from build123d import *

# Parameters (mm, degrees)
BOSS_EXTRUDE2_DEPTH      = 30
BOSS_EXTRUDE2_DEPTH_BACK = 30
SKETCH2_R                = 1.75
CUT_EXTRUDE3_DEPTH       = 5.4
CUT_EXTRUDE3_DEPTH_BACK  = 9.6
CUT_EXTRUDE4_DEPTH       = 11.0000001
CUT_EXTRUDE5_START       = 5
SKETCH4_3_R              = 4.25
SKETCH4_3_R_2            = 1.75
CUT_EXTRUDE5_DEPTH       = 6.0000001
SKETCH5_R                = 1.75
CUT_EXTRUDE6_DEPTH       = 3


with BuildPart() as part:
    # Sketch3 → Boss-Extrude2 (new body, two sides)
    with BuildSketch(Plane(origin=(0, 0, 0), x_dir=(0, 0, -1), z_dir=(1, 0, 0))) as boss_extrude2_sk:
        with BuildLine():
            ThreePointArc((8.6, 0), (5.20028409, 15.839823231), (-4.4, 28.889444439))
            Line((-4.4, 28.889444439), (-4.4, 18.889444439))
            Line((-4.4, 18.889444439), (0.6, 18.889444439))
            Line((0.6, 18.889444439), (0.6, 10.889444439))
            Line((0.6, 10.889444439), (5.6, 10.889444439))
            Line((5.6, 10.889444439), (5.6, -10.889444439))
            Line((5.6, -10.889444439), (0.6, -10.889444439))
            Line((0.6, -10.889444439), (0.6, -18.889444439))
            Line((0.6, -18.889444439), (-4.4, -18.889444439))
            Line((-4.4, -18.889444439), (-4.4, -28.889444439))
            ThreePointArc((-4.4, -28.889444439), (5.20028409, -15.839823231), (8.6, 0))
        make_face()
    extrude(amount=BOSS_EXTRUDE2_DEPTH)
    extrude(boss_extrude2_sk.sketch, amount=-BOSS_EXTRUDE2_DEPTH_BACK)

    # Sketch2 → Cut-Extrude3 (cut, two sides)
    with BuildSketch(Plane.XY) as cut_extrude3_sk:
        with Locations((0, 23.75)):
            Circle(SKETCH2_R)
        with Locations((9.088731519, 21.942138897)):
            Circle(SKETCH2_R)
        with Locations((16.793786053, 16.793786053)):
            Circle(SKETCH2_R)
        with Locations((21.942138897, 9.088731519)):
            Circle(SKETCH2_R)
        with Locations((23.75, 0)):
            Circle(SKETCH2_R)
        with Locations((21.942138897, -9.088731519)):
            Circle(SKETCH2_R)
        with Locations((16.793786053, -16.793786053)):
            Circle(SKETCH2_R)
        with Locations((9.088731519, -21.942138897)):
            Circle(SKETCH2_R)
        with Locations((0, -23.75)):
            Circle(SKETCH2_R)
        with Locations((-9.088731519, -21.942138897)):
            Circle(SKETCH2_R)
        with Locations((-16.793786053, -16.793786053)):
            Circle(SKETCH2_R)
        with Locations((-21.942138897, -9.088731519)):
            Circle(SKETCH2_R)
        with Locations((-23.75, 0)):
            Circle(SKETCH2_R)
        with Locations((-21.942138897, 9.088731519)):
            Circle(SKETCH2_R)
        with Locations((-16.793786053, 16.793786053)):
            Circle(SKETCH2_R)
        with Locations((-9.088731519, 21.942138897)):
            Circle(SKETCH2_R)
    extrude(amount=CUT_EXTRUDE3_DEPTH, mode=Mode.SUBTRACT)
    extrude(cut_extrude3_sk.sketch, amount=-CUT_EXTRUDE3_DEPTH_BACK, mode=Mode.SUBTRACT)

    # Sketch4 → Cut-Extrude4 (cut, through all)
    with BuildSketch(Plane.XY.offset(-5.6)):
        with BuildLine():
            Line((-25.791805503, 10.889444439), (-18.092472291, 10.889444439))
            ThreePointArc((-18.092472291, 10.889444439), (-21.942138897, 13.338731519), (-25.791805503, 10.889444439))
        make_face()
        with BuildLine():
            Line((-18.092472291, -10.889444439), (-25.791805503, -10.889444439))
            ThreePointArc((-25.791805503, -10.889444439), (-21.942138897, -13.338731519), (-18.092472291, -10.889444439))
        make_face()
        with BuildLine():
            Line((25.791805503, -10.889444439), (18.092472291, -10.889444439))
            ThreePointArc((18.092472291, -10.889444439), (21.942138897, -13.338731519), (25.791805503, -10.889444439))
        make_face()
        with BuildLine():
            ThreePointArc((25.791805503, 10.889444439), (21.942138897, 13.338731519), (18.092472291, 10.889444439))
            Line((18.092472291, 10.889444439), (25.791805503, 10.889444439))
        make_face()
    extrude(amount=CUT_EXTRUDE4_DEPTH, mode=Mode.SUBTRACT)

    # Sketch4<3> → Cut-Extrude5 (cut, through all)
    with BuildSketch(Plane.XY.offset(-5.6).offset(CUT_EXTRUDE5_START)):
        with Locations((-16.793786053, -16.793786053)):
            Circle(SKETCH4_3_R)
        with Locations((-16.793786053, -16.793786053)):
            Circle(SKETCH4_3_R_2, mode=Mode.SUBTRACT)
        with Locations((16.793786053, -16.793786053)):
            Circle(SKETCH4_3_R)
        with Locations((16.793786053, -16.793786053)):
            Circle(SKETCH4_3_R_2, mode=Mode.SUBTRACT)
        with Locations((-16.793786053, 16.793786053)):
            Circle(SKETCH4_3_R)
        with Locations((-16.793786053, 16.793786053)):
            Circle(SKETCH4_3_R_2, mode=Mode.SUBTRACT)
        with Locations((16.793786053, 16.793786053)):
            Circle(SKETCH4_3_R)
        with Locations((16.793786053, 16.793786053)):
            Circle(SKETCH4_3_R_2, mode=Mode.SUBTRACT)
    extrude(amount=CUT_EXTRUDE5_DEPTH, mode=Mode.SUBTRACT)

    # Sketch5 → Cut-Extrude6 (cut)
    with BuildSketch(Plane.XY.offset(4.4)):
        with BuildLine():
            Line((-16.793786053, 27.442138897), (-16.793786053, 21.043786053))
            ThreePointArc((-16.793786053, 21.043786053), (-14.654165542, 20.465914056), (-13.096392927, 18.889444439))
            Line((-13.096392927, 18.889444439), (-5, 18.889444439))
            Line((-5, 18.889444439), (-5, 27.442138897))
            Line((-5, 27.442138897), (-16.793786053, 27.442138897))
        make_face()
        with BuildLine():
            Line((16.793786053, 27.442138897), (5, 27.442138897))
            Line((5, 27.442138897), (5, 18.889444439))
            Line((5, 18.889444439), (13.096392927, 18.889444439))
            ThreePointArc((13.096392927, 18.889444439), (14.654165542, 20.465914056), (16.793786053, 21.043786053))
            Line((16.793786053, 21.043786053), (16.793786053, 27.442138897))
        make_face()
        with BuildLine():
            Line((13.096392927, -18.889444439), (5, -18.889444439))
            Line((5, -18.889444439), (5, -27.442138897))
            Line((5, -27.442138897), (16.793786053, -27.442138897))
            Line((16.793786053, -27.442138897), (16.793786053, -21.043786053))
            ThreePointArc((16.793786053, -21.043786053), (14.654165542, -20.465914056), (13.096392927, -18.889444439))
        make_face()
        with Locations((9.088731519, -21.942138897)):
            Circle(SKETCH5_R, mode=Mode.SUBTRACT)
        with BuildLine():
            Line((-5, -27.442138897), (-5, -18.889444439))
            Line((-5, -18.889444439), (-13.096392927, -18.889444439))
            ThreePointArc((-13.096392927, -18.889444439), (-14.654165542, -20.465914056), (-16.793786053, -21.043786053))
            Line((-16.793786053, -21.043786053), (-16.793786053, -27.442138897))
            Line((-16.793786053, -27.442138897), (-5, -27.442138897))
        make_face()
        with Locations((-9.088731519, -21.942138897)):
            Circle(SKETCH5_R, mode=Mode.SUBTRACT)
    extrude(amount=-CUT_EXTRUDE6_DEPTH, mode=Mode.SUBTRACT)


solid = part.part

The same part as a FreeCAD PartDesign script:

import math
import FreeCAD as App
import Part
import Sketcher

V = App.Vector

doc = App.newDocument("Part")
body = doc.addObject("PartDesign::Body", "Body")

# Sketch on YZ plane
sketch1 = body.newObject("Sketcher::SketchObject", "Sketch")
sketch1.AttachmentSupport = (doc.getObject("YZ_Plane"), [""])
sketch1.MapMode = "FlatFace"
sketch1.addGeometry([
    Part.ArcOfCircle(Part.Circle(V(0, 30, 0), V(0, 0, 1), 39), math.radians(-90), math.radians(-42)),  # 0
    Part.LineSegment(V(29, 4, 0), V(19, 4, 0)),  # 1
    Part.LineSegment(V(19, 4, 0), V(19, -1, 0)),  # 2
    Part.LineSegment(V(19, -1, 0), V(11, -1, 0)),  # 3
    Part.LineSegment(V(11, -1, 0), V(11, -6, 0)),  # 4
    Part.LineSegment(V(11, -6, 0), V(-11, -6, 0)),  # 5
    Part.LineSegment(V(-11, -6, 0), V(-11, -1, 0)),  # 6
    Part.LineSegment(V(-11, -1, 0), V(-19, -1, 0)),  # 7
    Part.LineSegment(V(-19, -1, 0), V(-19, 4, 0)),  # 8
    Part.LineSegment(V(-19, 4, 0), V(-29, 4, 0)),  # 9
    Part.ArcOfCircle(Part.Circle(V(0, 30, 0), V(0, 0, 1), 39), math.radians(-138), math.radians(-90)),  # 10
], False)
sketch1.addConstraint([
    Sketcher.Constraint("Coincident", 0, 2, 1, 1),
    Sketcher.Constraint("Coincident", 1, 2, 2, 1),
    Sketcher.Constraint("Coincident", 2, 2, 3, 1),
    Sketcher.Constraint("Coincident", 3, 2, 4, 1),
    Sketcher.Constraint("Coincident", 4, 2, 5, 1),
    Sketcher.Constraint("Coincident", 5, 2, 6, 1),
    Sketcher.Constraint("Coincident", 6, 2, 7, 1),
    Sketcher.Constraint("Coincident", 7, 2, 8, 1),
    Sketcher.Constraint("Coincident", 8, 2, 9, 1),
    Sketcher.Constraint("Coincident", 9, 2, 10, 1),
    Sketcher.Constraint("Tangent", 10, 2, 0, 1),
    Sketcher.Constraint("Horizontal", 1),
    Sketcher.Constraint("Vertical", 2),
    Sketcher.Constraint("Horizontal", 3),
    Sketcher.Constraint("Vertical", 4),
    Sketcher.Constraint("Horizontal", 5),
    Sketcher.Constraint("Vertical", 6),
    Sketcher.Constraint("Horizontal", 7),
    Sketcher.Constraint("Vertical", 8),
    Sketcher.Constraint("Horizontal", 9),
    Sketcher.Constraint("Equal", 0, 10),
    Sketcher.Constraint("Symmetric", 3, 2, 6, 2, -2),
    Sketcher.Constraint("Symmetric", 1, 2, 8, 2, -2),
    Sketcher.Constraint("PointOnObject", 0, 3, -2),
    Sketcher.Constraint("PointOnObject", 10, 2, -2),
    Sketcher.Constraint("Equal", 2, 4),
    Sketcher.Constraint("Radius", 0, 38.6),
    Sketcher.Constraint("DistanceX", 1, 2, 1, 1, 10.0),
    Sketcher.Constraint("DistanceX", 3, 2, 3, 1, 8.0),
    Sketcher.Constraint("DistanceY", 2, 2, 2, 1, 5.0),
    Sketcher.Constraint("DistanceY", -1, 1, 0, 3, 30.0),
    Sketcher.Constraint("DistanceY", 10, 2, 4, 2, 3.0),
])
pad1 = body.newObject("PartDesign::Pad", "Pad")
pad1.Profile = sketch1
pad1.Type = "TwoLengths"
pad1.Length = 30
pad1.Length2 = 30

# Sketch on XY plane
sketch2 = body.newObject("Sketcher::SketchObject", "Sketch001")
sketch2.AttachmentSupport = (doc.getObject("XY_Plane"), [""])
sketch2.MapMode = "FlatFace"
sketch2.addGeometry([
    Part.Circle(V(0, 23.8, 0), V(0, 0, 1), 1.8),  # 0
    Part.Circle(V(9.1, 21.9, 0), V(0, 0, 1), 1.8),  # 1
    Part.Circle(V(16.8, 16.8, 0), V(0, 0, 1), 1.8),  # 2
    Part.Circle(V(21.9, 9.1, 0), V(0, 0, 1), 1.8),  # 3
    Part.Circle(V(23.8, 0, 0), V(0, 0, 1), 1.8),  # 4
    Part.Circle(V(21.9, -9.1, 0), V(0, 0, 1), 1.8),  # 5
    Part.Circle(V(16.8, -16.8, 0), V(0, 0, 1), 1.8),  # 6
    Part.Circle(V(9.1, -21.9, 0), V(0, 0, 1), 1.8),  # 7
    Part.Circle(V(0, -23.8, 0), V(0, 0, 1), 1.8),  # 8
    Part.Circle(V(-9.1, -21.9, 0), V(0, 0, 1), 1.8),  # 9
    Part.Circle(V(-16.8, -16.8, 0), V(0, 0, 1), 1.8),  # 10
    Part.Circle(V(-21.9, -9.1, 0), V(0, 0, 1), 1.8),  # 11
    Part.Circle(V(-23.8, 0, 0), V(0, 0, 1), 1.8),  # 12
    Part.Circle(V(-21.9, 9.1, 0), V(0, 0, 1), 1.8),  # 13
    Part.Circle(V(-16.8, 16.8, 0), V(0, 0, 1), 1.8),  # 14
    Part.Circle(V(-9.1, 21.9, 0), V(0, 0, 1), 1.8),  # 15
], False)
sketch2.addConstraint([
    Sketcher.Constraint("Equal", 0, 1),
    Sketcher.Constraint("Equal", 1, 2),
    Sketcher.Constraint("Equal", 2, 3),
    Sketcher.Constraint("Equal", 3, 4),
    Sketcher.Constraint("Equal", 4, 5),
    Sketcher.Constraint("Equal", 5, 6),
    Sketcher.Constraint("Equal", 6, 7),
    Sketcher.Constraint("Equal", 7, 8),
    Sketcher.Constraint("Equal", 8, 9),
    Sketcher.Constraint("Equal", 9, 10),
    Sketcher.Constraint("Equal", 10, 11),
    Sketcher.Constraint("Equal", 11, 12),
    Sketcher.Constraint("Equal", 12, 13),
    Sketcher.Constraint("Equal", 13, 14),
    Sketcher.Constraint("Equal", 14, 15),
    Sketcher.Constraint("Symmetric", 0, 3, 8, 3, -1, 1),
    Sketcher.Constraint("Symmetric", 1, 3, 9, 3, -1, 1),
    Sketcher.Constraint("Symmetric", 2, 3, 10, 3, -1, 1),
    Sketcher.Constraint("Symmetric", 3, 3, 11, 3, -1, 1),
    Sketcher.Constraint("Symmetric", 4, 3, 12, 3, -1, 1),
    Sketcher.Constraint("Symmetric", 5, 3, 13, 3, -1, 1),
    Sketcher.Constraint("Symmetric", 6, 3, 14, 3, -1, 1),
    Sketcher.Constraint("Symmetric", 7, 3, 15, 3, -1, 1),
    Sketcher.Constraint("Symmetric", 7, 3, 9, 3, -2),
    Sketcher.Constraint("Symmetric", 6, 3, 10, 3, -2),
    Sketcher.Constraint("Symmetric", 5, 3, 11, 3, -2),
    Sketcher.Constraint("PointOnObject", 0, 3, -2),
    Sketcher.Constraint("PointOnObject", 4, 3, -1),
    Sketcher.Constraint("Diameter", 0, 3.5),
    Sketcher.Constraint("DistanceY", -1, 1, 0, 3, 23.75),
    Sketcher.Constraint("DistanceX", -1, 1, 4, 3, 23.75),
    Sketcher.Constraint("DistanceX", -1, 1, 1, 3, 9.088732),
    Sketcher.Constraint("DistanceY", -1, 1, 1, 3, 21.942139),
    Sketcher.Constraint("DistanceX", -1, 1, 3, 3, 21.942139),
    Sketcher.Constraint("DistanceY", -1, 1, 3, 3, 9.088732),
    Sketcher.Constraint("DistanceX", -1, 1, 2, 3, 16.793786),
    Sketcher.Constraint("DistanceY", -1, 1, 2, 3, 16.793786),
])
pocket1 = body.newObject("PartDesign::Pocket", "Pocket")
pocket1.Profile = sketch2
pocket1.Type = "ThroughAll"
pocket1.Midplane = True

# Sketch on XY plane
sketch3 = body.newObject("Sketcher::SketchObject", "Sketch002")
sketch3.AttachmentSupport = (doc.getObject("XY_Plane"), [""])
sketch3.MapMode = "FlatFace"
sketch3.AttachmentOffset = App.Placement(V(0, 0, -5.6), App.Rotation())
sketch3.addGeometry([
    Part.LineSegment(V(-25.8, 10.9, 0), V(-18.1, 10.9, 0)),  # 0
    Part.ArcOfCircle(Part.Circle(V(-21.9, 9.1, 0), V(0, 0, 1), 4.2), math.radians(25), math.radians(155)),  # 1
    Part.LineSegment(V(-18.1, -10.9, 0), V(-25.8, -10.9, 0)),  # 2
    Part.ArcOfCircle(Part.Circle(V(-21.9, -9.1, 0), V(0, 0, 1), 4.2), math.radians(-155), math.radians(-25)),  # 3
    Part.LineSegment(V(25.8, -10.9, 0), V(18.1, -10.9, 0)),  # 4
    Part.ArcOfCircle(Part.Circle(V(21.9, -9.1, 0), V(0, 0, 1), 4.2), math.radians(-155), math.radians(-25)),  # 5
    Part.ArcOfCircle(Part.Circle(V(21.9, 9.1, 0), V(0, 0, 1), 4.2), math.radians(25), math.radians(155)),  # 6
    Part.LineSegment(V(18.1, 10.9, 0), V(25.8, 10.9, 0)),  # 7
], False)
sketch3.addConstraint([
    Sketcher.Constraint("Coincident", 0, 1, 1, 2),
    Sketcher.Constraint("Coincident", 1, 1, 0, 2),
    Sketcher.Constraint("Coincident", 2, 1, 3, 2),
    Sketcher.Constraint("Coincident", 3, 1, 2, 2),
    Sketcher.Constraint("Coincident", 4, 1, 5, 2),
    Sketcher.Constraint("Coincident", 5, 1, 4, 2),
    Sketcher.Constraint("Coincident", 6, 1, 7, 2),
    Sketcher.Constraint("Coincident", 7, 1, 6, 2),
    Sketcher.Constraint("Horizontal", 0),
    Sketcher.Constraint("Horizontal", 2),
    Sketcher.Constraint("Horizontal", 4),
    Sketcher.Constraint("Horizontal", 7),
    Sketcher.Constraint("Equal", 1, 3),
    Sketcher.Constraint("Equal", 3, 5),
    Sketcher.Constraint("Equal", 5, 6),
    Sketcher.Constraint("Symmetric", 1, 3, 5, 3, -1, 1),
    Sketcher.Constraint("Symmetric", 3, 3, 6, 3, -1, 1),
    Sketcher.Constraint("Symmetric", 3, 3, 5, 3, -2),
    Sketcher.Constraint("Horizontal", 3, 1, 4, 1),
    Sketcher.Constraint("Horizontal", 1, 1, 6, 1),
    Sketcher.Constraint("Vertical", 1, 1, 2, 1),
    Sketcher.Constraint("Radius", 1, 4.25),
    Sketcher.Constraint("DistanceX", 0, 1, 0, 2, 7.699333),
    Sketcher.Constraint("DistanceX", 1, 3, -1, 1, 21.942139),
    Sketcher.Constraint("DistanceY", -1, 1, 1, 3, 9.088732),
])
pocket2 = body.newObject("PartDesign::Pocket", "Pocket001")
pocket2.Profile = sketch3
pocket2.Type = "ThroughAll"
pocket2.Reversed = True

# Sketch on XY plane
sketch4 = body.newObject("Sketcher::SketchObject", "Sketch003")
sketch4.AttachmentSupport = (doc.getObject("XY_Plane"), [""])
sketch4.MapMode = "FlatFace"
sketch4.AttachmentOffset = App.Placement(V(0, 0, -0.6), App.Rotation())
sketch4.addGeometry([
    Part.Circle(V(-16.8, -16.8, 0), V(0, 0, 1), 4.2),  # 0
    Part.Circle(V(-16.8, -16.8, 0), V(0, 0, 1), 1.8),  # 1
    Part.Circle(V(16.8, -16.8, 0), V(0, 0, 1), 4.2),  # 2
    Part.Circle(V(16.8, -16.8, 0), V(0, 0, 1), 1.8),  # 3
    Part.Circle(V(-16.8, 16.8, 0), V(0, 0, 1), 4.2),  # 4
    Part.Circle(V(-16.8, 16.8, 0), V(0, 0, 1), 1.8),  # 5
    Part.Circle(V(16.8, 16.8, 0), V(0, 0, 1), 4.2),  # 6
    Part.Circle(V(16.8, 16.8, 0), V(0, 0, 1), 1.8),  # 7
], False)
sketch4.addConstraint([
    Sketcher.Constraint("Coincident", 1, 3, 0, 3),
    Sketcher.Constraint("Coincident", 3, 3, 2, 3),
    Sketcher.Constraint("Coincident", 5, 3, 4, 3),
    Sketcher.Constraint("Coincident", 7, 3, 6, 3),
    Sketcher.Constraint("Equal", 0, 2),
    Sketcher.Constraint("Equal", 1, 3),
    Sketcher.Constraint("Equal", 2, 4),
    Sketcher.Constraint("Equal", 3, 5),
    Sketcher.Constraint("Equal", 4, 6),
    Sketcher.Constraint("Equal", 5, 7),
    Sketcher.Constraint("Symmetric", 2, 3, 4, 3, -1, 1),
    Sketcher.Constraint("Symmetric", 0, 3, 6, 3, -1, 1),
    Sketcher.Constraint("Symmetric", 0, 3, 2, 3, -2),
    Sketcher.Constraint("Diameter", 0, 8.5),
    Sketcher.Constraint("Diameter", 1, 3.5),
    Sketcher.Constraint("DistanceX", 0, 3, -1, 1, 16.793786),
    Sketcher.Constraint("DistanceY", 0, 3, -1, 1, 16.793786),
])
pocket3 = body.newObject("PartDesign::Pocket", "Pocket002")
pocket3.Profile = sketch4
pocket3.Type = "ThroughAll"
pocket3.Reversed = True

# Sketch on XY plane
sketch5 = body.newObject("Sketcher::SketchObject", "Sketch004")
sketch5.AttachmentSupport = (doc.getObject("XY_Plane"), [""])
sketch5.MapMode = "FlatFace"
sketch5.AttachmentOffset = App.Placement(V(0, 0, 4.4), App.Rotation())
sketch5.addGeometry([
    Part.LineSegment(V(-16.8, 27.4, 0), V(-16.8, 21, 0)),  # 0
    Part.ArcOfCircle(Part.Circle(V(-16.8, 16.8, 0), V(0, 0, 1), 4.2), math.radians(30), math.radians(90)),  # 1
    Part.LineSegment(V(-13.1, 18.9, 0), V(-5, 18.9, 0)),  # 2
    Part.LineSegment(V(-5, 18.9, 0), V(-5, 27.4, 0)),  # 3
    Part.LineSegment(V(-5, 27.4, 0), V(-16.8, 27.4, 0)),  # 4
    Part.LineSegment(V(16.8, 27.4, 0), V(5, 27.4, 0)),  # 5
    Part.LineSegment(V(5, 27.4, 0), V(5, 18.9, 0)),  # 6
    Part.LineSegment(V(5, 18.9, 0), V(13.1, 18.9, 0)),  # 7
    Part.ArcOfCircle(Part.Circle(V(16.8, 16.8, 0), V(0, 0, 1), 4.2), math.radians(90), math.radians(150)),  # 8
    Part.LineSegment(V(16.8, 21, 0), V(16.8, 27.4, 0)),  # 9
    Part.LineSegment(V(13.1, -18.9, 0), V(5, -18.9, 0)),  # 10
    Part.LineSegment(V(5, -18.9, 0), V(5, -27.4, 0)),  # 11
    Part.LineSegment(V(5, -27.4, 0), V(16.8, -27.4, 0)),  # 12
    Part.LineSegment(V(16.8, -27.4, 0), V(16.8, -21, 0)),  # 13
    Part.ArcOfCircle(Part.Circle(V(16.8, -16.8, 0), V(0, 0, 1), 4.2), math.radians(-150), math.radians(-90)),  # 14
    Part.Circle(V(9.1, -21.9, 0), V(0, 0, 1), 1.8),  # 15
    Part.LineSegment(V(-5, -27.4, 0), V(-5, -18.9, 0)),  # 16
    Part.LineSegment(V(-5, -18.9, 0), V(-13.1, -18.9, 0)),  # 17
    Part.ArcOfCircle(Part.Circle(V(-16.8, -16.8, 0), V(0, 0, 1), 4.2), math.radians(-90), math.radians(-30)),  # 18
    Part.LineSegment(V(-16.8, -21, 0), V(-16.8, -27.4, 0)),  # 19
    Part.LineSegment(V(-16.8, -27.4, 0), V(-5, -27.4, 0)),  # 20
    Part.Circle(V(-9.1, -21.9, 0), V(0, 0, 1), 1.8),  # 21
], False)
sketch5.addConstraint([
    Sketcher.Constraint("Coincident", 0, 2, 1, 2),
    Sketcher.Constraint("Coincident", 1, 1, 2, 1),
    Sketcher.Constraint("Coincident", 2, 2, 3, 1),
    Sketcher.Constraint("Coincident", 3, 2, 4, 1),
    Sketcher.Constraint("Coincident", 4, 2, 0, 1),
    Sketcher.Constraint("Coincident", 5, 2, 6, 1),
    Sketcher.Constraint("Coincident", 6, 2, 7, 1),
    Sketcher.Constraint("Coincident", 7, 2, 8, 2),
    Sketcher.Constraint("Coincident", 8, 1, 9, 1),
    Sketcher.Constraint("Coincident", 9, 2, 5, 1),
    Sketcher.Constraint("Coincident", 10, 2, 11, 1),
    Sketcher.Constraint("Coincident", 11, 2, 12, 1),
    Sketcher.Constraint("Coincident", 12, 2, 13, 1),
    Sketcher.Constraint("Coincident", 13, 2, 14, 2),
    Sketcher.Constraint("Coincident", 14, 1, 10, 1),
    Sketcher.Constraint("Coincident", 16, 2, 17, 1),
    Sketcher.Constraint("Coincident", 17, 2, 18, 2),
    Sketcher.Constraint("Coincident", 18, 1, 19, 1),
    Sketcher.Constraint("Coincident", 19, 2, 20, 1),
    Sketcher.Constraint("Coincident", 20, 2, 16, 1),
    Sketcher.Constraint("Vertical", 0),
    Sketcher.Constraint("Horizontal", 2),
    Sketcher.Constraint("Vertical", 3),
    Sketcher.Constraint("Horizontal", 4),
    Sketcher.Constraint("Horizontal", 5),
    Sketcher.Constraint("Vertical", 6),
    Sketcher.Constraint("Horizontal", 7),
    Sketcher.Constraint("Vertical", 9),
    Sketcher.Constraint("Horizontal", 10),
    Sketcher.Constraint("Vertical", 11),
    Sketcher.Constraint("Horizontal", 12),
    Sketcher.Constraint("Vertical", 13),
    Sketcher.Constraint("Vertical", 16),
    Sketcher.Constraint("Horizontal", 17),
    Sketcher.Constraint("Vertical", 19),
    Sketcher.Constraint("Horizontal", 20),
    Sketcher.Constraint("Equal", 1, 8),
    Sketcher.Constraint("Equal", 8, 14),
    Sketcher.Constraint("Equal", 14, 18),
    Sketcher.Constraint("Equal", 15, 21),
    Sketcher.Constraint("Symmetric", 1, 3, 14, 3, -1, 1),
    Sketcher.Constraint("Symmetric", 8, 3, 18, 3, -1, 1),
    Sketcher.Constraint("Symmetric", 2, 2, 10, 2, -1, 1),
    Sketcher.Constraint("Symmetric", 4, 2, 12, 2, -1, 1),
    Sketcher.Constraint("Symmetric", 6, 2, 16, 2, -1, 1),
    Sketcher.Constraint("Symmetric", 9, 2, 19, 2, -1, 1),
    Sketcher.Constraint("Symmetric", 1, 3, 8, 3, -2),
    Sketcher.Constraint("Symmetric", 15, 3, 21, 3, -2),
    Sketcher.Constraint("Symmetric", 3, 2, 5, 2, -2),
    Sketcher.Constraint("Horizontal", 2, 2, 6, 2),
    Sketcher.Constraint("Vertical", 18, 3, 0, 2),
    Sketcher.Constraint("Vertical", 14, 3, 8, 1),
    Sketcher.Constraint("Diameter", 15, 3.5),
    Sketcher.Constraint("Radius", 1, 4.25),
    Sketcher.Constraint("DistanceX", 2, 2, -1, 1, 5.0),
    Sketcher.Constraint("DistanceY", 11, 2, 15, 3, 5.5),
    Sketcher.Constraint("DistanceX", 2, 1, 2, 2, 8.096393),
    Sketcher.Constraint("DistanceX", 4, 2, 4, 1, 11.793786),
    Sketcher.Constraint("DistanceY", 0, 2, 0, 1, 6.398353),
    Sketcher.Constraint("DistanceX", -1, 1, 15, 3, 9.088732),
    Sketcher.Constraint("DistanceY", 15, 3, -1, 1, 21.942139),
])
pocket4 = body.newObject("PartDesign::Pocket", "Pocket003")
pocket4.Profile = sketch5
pocket4.Length = 3

doc.recompute()
